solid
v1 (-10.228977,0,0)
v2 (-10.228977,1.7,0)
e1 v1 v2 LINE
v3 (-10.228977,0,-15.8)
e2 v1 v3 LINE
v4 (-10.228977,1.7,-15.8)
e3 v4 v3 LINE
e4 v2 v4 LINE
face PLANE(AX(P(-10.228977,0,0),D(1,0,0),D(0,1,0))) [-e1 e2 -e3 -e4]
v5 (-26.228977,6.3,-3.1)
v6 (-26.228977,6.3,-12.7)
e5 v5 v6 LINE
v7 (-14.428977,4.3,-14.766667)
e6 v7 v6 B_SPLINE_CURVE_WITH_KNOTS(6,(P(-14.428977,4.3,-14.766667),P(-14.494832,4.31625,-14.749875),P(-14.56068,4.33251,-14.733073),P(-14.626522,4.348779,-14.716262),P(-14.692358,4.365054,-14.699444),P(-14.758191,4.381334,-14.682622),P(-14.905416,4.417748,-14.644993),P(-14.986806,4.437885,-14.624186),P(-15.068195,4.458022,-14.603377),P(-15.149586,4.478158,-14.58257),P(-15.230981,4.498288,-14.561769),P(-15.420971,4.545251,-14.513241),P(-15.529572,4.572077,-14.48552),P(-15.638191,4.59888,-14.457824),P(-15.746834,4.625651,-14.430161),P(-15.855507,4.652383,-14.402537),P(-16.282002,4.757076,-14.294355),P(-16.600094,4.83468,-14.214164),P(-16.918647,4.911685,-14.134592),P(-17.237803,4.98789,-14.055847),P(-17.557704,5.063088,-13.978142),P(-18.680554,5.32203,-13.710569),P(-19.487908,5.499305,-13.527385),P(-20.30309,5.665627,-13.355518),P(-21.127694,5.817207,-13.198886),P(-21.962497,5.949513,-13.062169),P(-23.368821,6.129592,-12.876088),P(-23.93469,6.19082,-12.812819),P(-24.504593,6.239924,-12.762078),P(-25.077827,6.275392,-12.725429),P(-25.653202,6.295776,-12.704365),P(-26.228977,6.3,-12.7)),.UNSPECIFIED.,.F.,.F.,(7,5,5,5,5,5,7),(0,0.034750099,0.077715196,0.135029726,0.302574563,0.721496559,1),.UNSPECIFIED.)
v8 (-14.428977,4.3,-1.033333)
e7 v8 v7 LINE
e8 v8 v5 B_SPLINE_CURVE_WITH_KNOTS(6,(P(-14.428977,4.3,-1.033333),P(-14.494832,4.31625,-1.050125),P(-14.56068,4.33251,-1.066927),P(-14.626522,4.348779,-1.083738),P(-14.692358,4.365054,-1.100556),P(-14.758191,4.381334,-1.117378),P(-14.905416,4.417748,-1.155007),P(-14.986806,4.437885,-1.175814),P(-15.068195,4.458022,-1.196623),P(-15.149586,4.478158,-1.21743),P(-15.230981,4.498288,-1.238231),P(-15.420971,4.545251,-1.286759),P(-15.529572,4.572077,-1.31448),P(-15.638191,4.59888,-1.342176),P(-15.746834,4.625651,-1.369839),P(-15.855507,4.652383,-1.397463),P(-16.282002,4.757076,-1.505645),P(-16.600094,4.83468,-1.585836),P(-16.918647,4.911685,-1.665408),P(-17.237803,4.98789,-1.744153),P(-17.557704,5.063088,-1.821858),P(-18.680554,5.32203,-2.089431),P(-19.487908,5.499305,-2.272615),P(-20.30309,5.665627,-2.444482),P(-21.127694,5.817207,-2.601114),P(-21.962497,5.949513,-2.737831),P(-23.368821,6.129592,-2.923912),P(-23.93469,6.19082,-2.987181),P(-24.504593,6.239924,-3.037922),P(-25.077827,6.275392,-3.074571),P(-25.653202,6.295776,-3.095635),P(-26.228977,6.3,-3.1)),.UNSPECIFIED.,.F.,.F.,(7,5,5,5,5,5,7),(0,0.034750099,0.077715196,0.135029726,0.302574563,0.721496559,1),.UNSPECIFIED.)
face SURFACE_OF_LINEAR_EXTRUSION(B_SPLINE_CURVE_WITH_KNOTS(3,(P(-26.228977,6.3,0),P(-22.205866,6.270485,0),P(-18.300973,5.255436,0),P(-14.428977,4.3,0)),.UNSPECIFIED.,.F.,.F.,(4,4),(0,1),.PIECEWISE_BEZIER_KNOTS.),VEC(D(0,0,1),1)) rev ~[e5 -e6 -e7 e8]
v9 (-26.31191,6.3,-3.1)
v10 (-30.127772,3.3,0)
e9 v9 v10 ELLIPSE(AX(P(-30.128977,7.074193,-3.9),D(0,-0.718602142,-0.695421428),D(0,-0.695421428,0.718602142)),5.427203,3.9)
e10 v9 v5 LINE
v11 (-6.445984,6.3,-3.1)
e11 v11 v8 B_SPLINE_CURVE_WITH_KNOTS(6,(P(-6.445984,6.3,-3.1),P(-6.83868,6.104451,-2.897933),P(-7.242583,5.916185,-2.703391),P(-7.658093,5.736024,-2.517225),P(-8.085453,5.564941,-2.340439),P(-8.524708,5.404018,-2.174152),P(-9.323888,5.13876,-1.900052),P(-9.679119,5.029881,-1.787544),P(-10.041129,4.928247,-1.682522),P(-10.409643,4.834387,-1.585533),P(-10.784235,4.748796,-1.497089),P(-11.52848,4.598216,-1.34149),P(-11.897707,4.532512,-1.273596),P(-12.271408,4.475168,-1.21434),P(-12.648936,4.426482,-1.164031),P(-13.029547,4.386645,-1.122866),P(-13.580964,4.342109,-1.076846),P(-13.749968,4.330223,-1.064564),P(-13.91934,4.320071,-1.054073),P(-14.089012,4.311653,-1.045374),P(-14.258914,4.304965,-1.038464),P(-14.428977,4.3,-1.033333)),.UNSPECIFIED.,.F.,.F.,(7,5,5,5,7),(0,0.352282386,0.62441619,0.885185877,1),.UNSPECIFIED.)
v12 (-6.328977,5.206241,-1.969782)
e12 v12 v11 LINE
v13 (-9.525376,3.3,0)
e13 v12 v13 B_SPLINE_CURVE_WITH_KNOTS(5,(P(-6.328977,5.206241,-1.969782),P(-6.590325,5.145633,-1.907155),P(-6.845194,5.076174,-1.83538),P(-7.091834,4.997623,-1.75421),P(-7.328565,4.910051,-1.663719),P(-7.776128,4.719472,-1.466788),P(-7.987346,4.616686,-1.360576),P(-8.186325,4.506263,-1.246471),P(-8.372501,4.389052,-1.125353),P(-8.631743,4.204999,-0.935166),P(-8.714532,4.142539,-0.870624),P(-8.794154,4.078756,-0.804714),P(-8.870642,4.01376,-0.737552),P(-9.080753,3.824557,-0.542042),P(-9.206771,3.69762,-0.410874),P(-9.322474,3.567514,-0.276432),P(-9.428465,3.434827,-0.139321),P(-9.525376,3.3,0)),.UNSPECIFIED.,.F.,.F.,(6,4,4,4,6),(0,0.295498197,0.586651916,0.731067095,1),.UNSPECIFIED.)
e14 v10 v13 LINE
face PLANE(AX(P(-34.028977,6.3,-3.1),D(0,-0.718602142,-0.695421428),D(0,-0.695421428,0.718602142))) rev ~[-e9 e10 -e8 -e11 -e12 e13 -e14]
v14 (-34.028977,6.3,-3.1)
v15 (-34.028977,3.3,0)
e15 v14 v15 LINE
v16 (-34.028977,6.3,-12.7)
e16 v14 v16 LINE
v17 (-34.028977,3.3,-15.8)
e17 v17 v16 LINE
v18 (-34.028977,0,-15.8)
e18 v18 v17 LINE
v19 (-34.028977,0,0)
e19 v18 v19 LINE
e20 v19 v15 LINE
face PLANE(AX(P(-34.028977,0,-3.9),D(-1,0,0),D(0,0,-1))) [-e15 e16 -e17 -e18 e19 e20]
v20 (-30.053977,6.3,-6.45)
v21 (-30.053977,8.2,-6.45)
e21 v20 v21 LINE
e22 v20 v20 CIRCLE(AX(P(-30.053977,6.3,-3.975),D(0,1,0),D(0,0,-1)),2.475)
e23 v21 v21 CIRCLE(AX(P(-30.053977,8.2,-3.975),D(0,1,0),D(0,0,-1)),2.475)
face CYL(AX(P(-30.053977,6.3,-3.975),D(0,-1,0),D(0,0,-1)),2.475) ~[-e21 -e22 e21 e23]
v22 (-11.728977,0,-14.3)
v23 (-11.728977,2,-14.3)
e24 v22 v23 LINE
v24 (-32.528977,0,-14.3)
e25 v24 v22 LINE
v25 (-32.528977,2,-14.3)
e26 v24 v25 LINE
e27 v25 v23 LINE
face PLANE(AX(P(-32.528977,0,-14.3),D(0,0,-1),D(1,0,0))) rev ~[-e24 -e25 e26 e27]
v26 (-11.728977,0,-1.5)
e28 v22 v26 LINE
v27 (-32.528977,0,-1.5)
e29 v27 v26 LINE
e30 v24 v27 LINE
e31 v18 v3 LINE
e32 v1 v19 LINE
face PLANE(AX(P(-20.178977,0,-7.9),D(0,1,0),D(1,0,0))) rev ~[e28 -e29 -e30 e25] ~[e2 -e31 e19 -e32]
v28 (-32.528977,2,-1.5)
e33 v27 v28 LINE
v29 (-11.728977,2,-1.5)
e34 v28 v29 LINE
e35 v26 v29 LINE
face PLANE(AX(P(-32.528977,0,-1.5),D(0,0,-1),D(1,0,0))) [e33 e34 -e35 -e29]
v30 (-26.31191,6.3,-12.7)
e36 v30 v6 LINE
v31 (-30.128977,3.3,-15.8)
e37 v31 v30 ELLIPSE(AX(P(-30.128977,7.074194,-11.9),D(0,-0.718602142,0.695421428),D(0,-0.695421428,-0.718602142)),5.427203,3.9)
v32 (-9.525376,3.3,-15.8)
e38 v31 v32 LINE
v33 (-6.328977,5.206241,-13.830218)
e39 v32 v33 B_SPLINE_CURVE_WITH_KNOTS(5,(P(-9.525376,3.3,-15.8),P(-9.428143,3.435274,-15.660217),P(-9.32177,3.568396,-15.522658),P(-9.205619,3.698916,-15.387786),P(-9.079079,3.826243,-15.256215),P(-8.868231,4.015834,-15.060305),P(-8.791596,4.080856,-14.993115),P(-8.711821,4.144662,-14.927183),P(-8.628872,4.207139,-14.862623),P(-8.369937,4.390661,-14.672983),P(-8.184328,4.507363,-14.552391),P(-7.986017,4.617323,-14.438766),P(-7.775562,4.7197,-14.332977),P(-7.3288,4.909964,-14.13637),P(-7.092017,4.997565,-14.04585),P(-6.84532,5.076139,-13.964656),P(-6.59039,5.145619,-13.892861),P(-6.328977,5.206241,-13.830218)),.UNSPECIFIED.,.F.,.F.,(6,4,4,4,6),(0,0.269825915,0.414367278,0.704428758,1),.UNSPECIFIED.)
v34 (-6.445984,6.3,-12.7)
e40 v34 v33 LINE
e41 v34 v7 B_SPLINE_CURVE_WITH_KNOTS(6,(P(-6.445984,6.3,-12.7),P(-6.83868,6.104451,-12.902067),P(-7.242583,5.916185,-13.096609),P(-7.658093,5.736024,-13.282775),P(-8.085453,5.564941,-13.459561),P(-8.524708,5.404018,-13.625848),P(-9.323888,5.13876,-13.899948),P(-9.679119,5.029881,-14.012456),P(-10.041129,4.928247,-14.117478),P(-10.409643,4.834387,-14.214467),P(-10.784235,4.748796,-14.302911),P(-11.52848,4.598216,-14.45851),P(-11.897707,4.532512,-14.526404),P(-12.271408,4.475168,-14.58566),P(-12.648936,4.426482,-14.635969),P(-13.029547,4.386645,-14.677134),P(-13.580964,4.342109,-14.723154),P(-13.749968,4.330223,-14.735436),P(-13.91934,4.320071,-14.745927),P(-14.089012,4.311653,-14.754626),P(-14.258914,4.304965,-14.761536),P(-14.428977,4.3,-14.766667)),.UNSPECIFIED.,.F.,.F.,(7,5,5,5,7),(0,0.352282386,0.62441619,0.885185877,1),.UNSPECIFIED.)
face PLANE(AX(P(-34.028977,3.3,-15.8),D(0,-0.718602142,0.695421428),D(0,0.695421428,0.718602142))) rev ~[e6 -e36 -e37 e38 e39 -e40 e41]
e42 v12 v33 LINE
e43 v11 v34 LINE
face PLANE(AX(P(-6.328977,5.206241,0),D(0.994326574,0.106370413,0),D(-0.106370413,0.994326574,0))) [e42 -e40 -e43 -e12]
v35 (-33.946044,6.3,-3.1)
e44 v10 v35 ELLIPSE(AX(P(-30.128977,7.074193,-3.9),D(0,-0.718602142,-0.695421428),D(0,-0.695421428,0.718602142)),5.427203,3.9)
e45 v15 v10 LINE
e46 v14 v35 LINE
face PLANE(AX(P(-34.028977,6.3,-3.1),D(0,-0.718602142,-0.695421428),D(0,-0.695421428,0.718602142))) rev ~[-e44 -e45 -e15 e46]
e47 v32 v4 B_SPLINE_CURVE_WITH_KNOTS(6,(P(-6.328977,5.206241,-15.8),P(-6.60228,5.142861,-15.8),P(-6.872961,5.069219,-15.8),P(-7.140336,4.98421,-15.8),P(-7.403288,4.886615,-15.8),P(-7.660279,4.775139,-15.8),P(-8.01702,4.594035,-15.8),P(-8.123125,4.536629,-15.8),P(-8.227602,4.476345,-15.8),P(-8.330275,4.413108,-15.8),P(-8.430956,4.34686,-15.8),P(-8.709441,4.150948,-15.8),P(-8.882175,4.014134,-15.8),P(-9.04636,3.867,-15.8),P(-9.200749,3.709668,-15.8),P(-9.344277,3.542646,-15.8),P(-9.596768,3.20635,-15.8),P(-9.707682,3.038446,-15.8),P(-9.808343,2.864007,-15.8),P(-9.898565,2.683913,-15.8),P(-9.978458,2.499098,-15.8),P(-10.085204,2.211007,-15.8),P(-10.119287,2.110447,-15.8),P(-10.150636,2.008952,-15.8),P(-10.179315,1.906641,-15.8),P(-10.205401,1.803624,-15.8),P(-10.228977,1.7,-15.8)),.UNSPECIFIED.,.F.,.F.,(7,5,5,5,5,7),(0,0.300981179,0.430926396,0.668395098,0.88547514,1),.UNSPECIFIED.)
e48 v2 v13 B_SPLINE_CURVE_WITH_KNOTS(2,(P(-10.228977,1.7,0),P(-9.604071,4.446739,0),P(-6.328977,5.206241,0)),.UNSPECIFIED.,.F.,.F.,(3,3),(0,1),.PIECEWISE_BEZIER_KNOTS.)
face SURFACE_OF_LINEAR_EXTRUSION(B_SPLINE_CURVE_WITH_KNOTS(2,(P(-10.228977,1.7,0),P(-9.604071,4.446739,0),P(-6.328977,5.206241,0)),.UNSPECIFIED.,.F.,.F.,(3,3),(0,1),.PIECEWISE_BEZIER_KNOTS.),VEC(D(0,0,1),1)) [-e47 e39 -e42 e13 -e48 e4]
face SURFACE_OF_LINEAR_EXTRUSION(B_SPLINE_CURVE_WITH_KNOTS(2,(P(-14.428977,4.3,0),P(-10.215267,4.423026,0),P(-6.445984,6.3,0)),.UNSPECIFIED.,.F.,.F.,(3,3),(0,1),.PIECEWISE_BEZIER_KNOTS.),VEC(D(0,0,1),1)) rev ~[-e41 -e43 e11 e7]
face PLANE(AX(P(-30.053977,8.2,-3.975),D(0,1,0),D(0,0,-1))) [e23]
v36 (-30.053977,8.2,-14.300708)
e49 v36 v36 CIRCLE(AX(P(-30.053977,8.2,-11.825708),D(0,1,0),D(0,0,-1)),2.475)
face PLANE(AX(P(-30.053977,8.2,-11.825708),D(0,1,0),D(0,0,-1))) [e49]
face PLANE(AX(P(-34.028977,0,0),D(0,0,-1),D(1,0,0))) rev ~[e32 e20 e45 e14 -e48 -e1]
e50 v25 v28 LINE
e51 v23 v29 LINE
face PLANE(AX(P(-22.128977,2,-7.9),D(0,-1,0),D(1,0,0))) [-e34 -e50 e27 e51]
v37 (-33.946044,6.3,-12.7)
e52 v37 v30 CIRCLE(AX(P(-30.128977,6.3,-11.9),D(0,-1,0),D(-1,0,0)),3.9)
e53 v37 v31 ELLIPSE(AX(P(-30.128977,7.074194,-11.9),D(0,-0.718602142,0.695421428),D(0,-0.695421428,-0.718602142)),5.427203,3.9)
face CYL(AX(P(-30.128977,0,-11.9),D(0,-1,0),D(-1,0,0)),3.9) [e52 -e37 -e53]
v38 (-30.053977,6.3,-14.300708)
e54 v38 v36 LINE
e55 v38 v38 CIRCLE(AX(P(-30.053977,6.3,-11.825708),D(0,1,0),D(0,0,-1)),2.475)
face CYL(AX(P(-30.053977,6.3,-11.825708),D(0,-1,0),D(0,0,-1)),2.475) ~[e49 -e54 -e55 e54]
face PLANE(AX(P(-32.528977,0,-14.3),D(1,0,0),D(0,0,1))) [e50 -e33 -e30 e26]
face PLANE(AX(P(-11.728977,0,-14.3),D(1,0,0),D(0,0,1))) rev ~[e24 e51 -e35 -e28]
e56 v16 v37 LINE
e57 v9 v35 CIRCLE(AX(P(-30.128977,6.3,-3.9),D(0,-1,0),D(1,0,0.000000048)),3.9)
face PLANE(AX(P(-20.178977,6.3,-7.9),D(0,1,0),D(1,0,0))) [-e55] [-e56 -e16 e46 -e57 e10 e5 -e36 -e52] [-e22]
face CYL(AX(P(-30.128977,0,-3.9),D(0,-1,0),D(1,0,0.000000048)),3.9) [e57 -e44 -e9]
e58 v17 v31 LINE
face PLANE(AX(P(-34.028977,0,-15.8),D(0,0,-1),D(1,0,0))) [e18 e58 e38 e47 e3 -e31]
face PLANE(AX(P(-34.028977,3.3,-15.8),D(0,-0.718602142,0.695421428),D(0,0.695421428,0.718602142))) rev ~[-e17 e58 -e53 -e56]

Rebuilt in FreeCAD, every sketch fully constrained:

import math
import FreeCAD as App
import Part
import Sketcher
from FreeCAD import Vector


def add_polygon(sketch, points):
    """Adds a closed chain of lines whose ends are joined by coincident constraints."""
    first, n = sketch.GeometryCount, len(points)
    for a, b in zip(points, points[1:] + points[:1]):
        sketch.addGeometry(Part.LineSegment(App.Vector(*a, 0), App.Vector(*b, 0)), False)
    for i in range(n):
        sketch.addConstraint(Sketcher.Constraint("Coincident", first + i, 2, first + (i + 1) % n, 1))

doc = App.newDocument("Part")
body = doc.addObject("PartDesign::Body", "Body")

sketch1 = body.newObject("Sketcher::SketchObject", "Sketch")
sketch1.AttachmentSupport = (doc.getObject("XZ_Plane"), [""])
sketch1.MapMode = "FlatFace"
add_polygon(sketch1, [(-34, -16), (-34, 0), (-6, 0), (-6, -16)])
sketch1.addConstraint([
    Sketcher.Constraint("Vertical", 0),
    Sketcher.Constraint("Horizontal", 1),
    Sketcher.Constraint("Vertical", 2),
    Sketcher.Constraint("Horizontal", 3),
    Sketcher.Constraint("PointOnObject", 0, 2, -1),
    Sketcher.Constraint("DistanceX", 1, 1, 1, 2, 27.7),
    Sketcher.Constraint("DistanceY", 0, 1, 0, 2, 15.8),
    Sketcher.Constraint("DistanceX", 0, 2, -1, 1, 34.028977),
])
pad1 = body.newObject("PartDesign::Pad", "Pad")
pad1.Profile = sketch1
pad1.Length = 6.3
pad1.Reversed = True

sketch2 = body.newObject("Sketcher::SketchObject", "Sketch001")
sketch2.AttachmentSupport = (doc.getObject("XY_Plane"), [""])
sketch2.MapMode = "FlatFace"
add_polygon(sketch2, [(-38.28, 10.551), (-38.28, -4.251), (-2.078, -4.251), (-2.078, 10.551)])
sketch2.addGeometry(Part.LineSegment(Vector(-10.228977, 0, 0), Vector(-34.028977, 0, 0)), False)
sketch2.addGeometry(Part.LineSegment(Vector(-34.028977, 0, 0), Vector(-34.028977, 6.3, 0)), False)
sketch2.addGeometry(Part.LineSegment(Vector(-34.028977, 6.3, 0), Vector(-26.228977, 6.3, 0)), False)
sketch2.addGeometry(Part.BSplineCurve([Vector(-26.228977, 6.3, 0), Vector(-22.205866, 6.270485, 0), Vector(-18.300973, 5.255436, 0), Vector(-14.428977, 4.3, 0)], [4, 4], [0, 1], False, 3, [1, 1, 1, 1], False), False)
sketch2.addGeometry(Part.BSplineCurve([Vector(-14.428977, 4.3, 0), Vector(-10.215267, 4.423026, 0), Vector(-6.445984, 6.3, 0)], [3, 3], [0, 1], False, 2, [1, 1, 1], False), False)
sketch2.addGeometry(Part.LineSegment(Vector(-6.445984, 6.3, 0), Vector(-6.328977, 5.206241, 0)), False)
sketch2.addGeometry(Part.BSplineCurve([Vector(-10.228977, 1.7, 0), Vector(-9.604071, 4.446739, 0), Vector(-6.328977, 5.206241, 0)], [3, 3], [0, 1], False, 2, [1, 1, 1], False), False)
sketch2.addGeometry(Part.LineSegment(Vector(-10.228977, 1.7, 0), Vector(-10.228977, 0, 0)), False)
sketch2.addConstraint([
    Sketcher.Constraint("Block", 7),
    Sketcher.Constraint("Block", 8),
    Sketcher.Constraint("Block", 10),
    Sketcher.Constraint("Coincident", 4, 2, 5, 1),
    Sketcher.Constraint("Coincident", 5, 2, 6, 1),
    Sketcher.Constraint("Coincident", 6, 2, 7, 1),
    Sketcher.Constraint("Coincident", 8, 2, 9, 1),
    Sketcher.Constraint("Coincident", 9, 2, 10, 2),
    Sketcher.Constraint("Coincident", 10, 1, 11, 1),
    Sketcher.Constraint("Coincident", 11, 2, 4, 1),
    Sketcher.Constraint("Vertical", 0),
    Sketcher.Constraint("Horizontal", 1),
    Sketcher.Constraint("Vertical", 2),
    Sketcher.Constraint("Horizontal", 3),
    Sketcher.Constraint("Horizontal", 4),
    Sketcher.Constraint("Vertical", 5),
    Sketcher.Constraint("Horizontal", 6),
    Sketcher.Constraint("Vertical", 11),
    Sketcher.Constraint("PointOnObject", 4, 2, -1),
    Sketcher.Constraint("DistanceX", 4, 2, 4, 1, 23.8),
    Sketcher.Constraint("DistanceX", 1, 1, 1, 2, 36.202),
    Sketcher.Constraint("DistanceY", 0, 2, 0, 1, 14.802),
    Sketcher.Constraint("DistanceX", 0, 2, -1, 1, 38.28),
    Sketcher.Constraint("DistanceY", 0, 2, -1, 1, 4.251),
])
pocket1 = body.newObject("PartDesign::Pocket", "Pocket")
pocket1.Profile = sketch2
pocket1.Length = 15.9

sketch3 = body.newObject("Sketcher::SketchObject", "Sketch002")
sketch3.AttachmentSupport = (doc.getObject("YZ_Plane"), [""])
sketch3.MapMode = "FlatFace"
sketch3.AttachmentOffset = App.Placement(Vector(0, 0, -34.028977), App.Rotation())
add_polygon(sketch3, [(10.6, -20.1), (-4.3, -20.1), (-4.3, 4.3), (10.6, 4.3)])
add_polygon(sketch3, [(0, 0), (0, -15.8), (3.3, -15.8), (6.3, -12.7), (6.3, -3.1), (3.3, 0)])
sketch3.addConstraint([
    Sketcher.Constraint("Horizontal", 0),
    Sketcher.Constraint("Vertical", 1),
    Sketcher.Constraint("Horizontal", 2),
    Sketcher.Constraint("Vertical", 3),
    Sketcher.Constraint("Vertical", 4),
    Sketcher.Constraint("Horizontal", 5),
    Sketcher.Constraint("Vertical", 7),
    Sketcher.Constraint("Horizontal", 9),
    Sketcher.Constraint("Coincident", 9, 2, -1, 1),
    Sketcher.Constraint("Vertical", 5, 2, 8, 2),
    Sketcher.Constraint("Equal", 6, 8),
    Sketcher.Constraint("DistanceX", 5, 1, 5, 2, 3.3),
    Sketcher.Constraint("DistanceY", 4, 2, 4, 1, 15.8),
    Sketcher.Constraint("DistanceY", 7, 1, 7, 2, 9.6),
    Sketcher.Constraint("DistanceX", 5, 2, 6, 2, 3.0),
    Sketcher.Constraint("DistanceX", 0, 2, 0, 1, 14.802),
    Sketcher.Constraint("DistanceY", 1, 1, 1, 2, 24.302),
    Sketcher.Constraint("DistanceX", 0, 2, -1, 1, 4.251),
    Sketcher.Constraint("DistanceY", 0, 2, -1, 1, 20.051),
])
pocket2 = body.newObject("PartDesign::Pocket", "Pocket001")
pocket2.Profile = sketch3
pocket2.Length = 35.9
pocket2.Reversed = True

sketch4 = body.newObject("Sketcher::SketchObject", "Sketch003")
sketch4.AttachmentSupport = (doc.getObject("XZ_Plane"), [""])
sketch4.MapMode = "FlatFace"
sketch4.addGeometry([
    Part.LineSegment(Vector(-34, -3.9, 0), Vector(-34, -11.9, 0)),
    Part.ArcOfCircle(Part.Circle(Vector(-30.1, -11.9, 0), Vector(0, 0, 1), 3.9), math.radians(180), math.radians(360)),
    Part.LineSegment(Vector(-26.2, -11.9, 0), Vector(-26.2, -3.9, 0)),
    Part.ArcOfCircle(Part.Circle(Vector(-30.1, -3.9, 0), Vector(0, 0, 1), 3.9), math.radians(0), math.radians(180)),
], False)
sketch4.addConstraint([
    Sketcher.Constraint("Tangent", 0, 2, 1, 1),
    Sketcher.Constraint("Tangent", 1, 2, 2, 1),
    Sketcher.Constraint("Tangent", 2, 2, 3, 1),
    Sketcher.Constraint("Tangent", 3, 2, 0, 1),
    Sketcher.Constraint("Vertical", 0),
    Sketcher.Constraint("Vertical", 2),
    Sketcher.Constraint("Radius", 1, 3.9),
    Sketcher.Constraint("DistanceY", 0, 2, 0, 1, 8.0),
    Sketcher.Constraint("DistanceY", 1, 3, -1, 1, 11.9),
    Sketcher.Constraint("DistanceX", 1, 3, -1, 1, 30.128977),
])
pad2 = body.newObject("PartDesign::Pad", "Pad001")
pad2.Profile = sketch4
pad2.Length = 6.3
pad2.Reversed = True

sketch5 = body.newObject("Sketcher::SketchObject", "Sketch004")
sketch5.AttachmentSupport = (doc.getObject("XZ_Plane"), [""])
sketch5.MapMode = "FlatFace"
sketch5.AttachmentOffset = App.Placement(Vector(0, 0, -6.3), App.Rotation())
sketch5.addGeometry([
    Part.Circle(Vector(-30.1, -11.8, 0), Vector(0, 0, 1), 2.5),
    Part.Circle(Vector(-30.1, -4, 0), Vector(0, 0, 1), 2.5),
], False)
sketch5.addConstraint([
    Sketcher.Constraint("Equal", 0, 1),
    Sketcher.Constraint("Vertical", 0, 3, 1, 3),
    Sketcher.Constraint("Diameter", 0, 4.95),
    Sketcher.Constraint("DistanceY", 1, 3, -1, 1, 3.975),
    Sketcher.Constraint("DistanceX", 0, 3, -1, 1, 30.053977),
    Sketcher.Constraint("DistanceY", 0, 3, -1, 1, 11.825708),
])
pad3 = body.newObject("PartDesign::Pad", "Pad002")
pad3.Profile = sketch5
pad3.Length = 1.9
pad3.Reversed = True

sketch6 = body.newObject("Sketcher::SketchObject", "Sketch005")
sketch6.AttachmentSupport = (doc.getObject("XZ_Plane"), [""])
sketch6.MapMode = "FlatFace"
add_polygon(sketch6, [(-33, -2), (-33, -14), (-12, -14), (-12, -2)])
sketch6.addConstraint([
    Sketcher.Constraint("Vertical", 0),
    Sketcher.Constraint("Horizontal", 1),
    Sketcher.Constraint("Vertical", 2),
    Sketcher.Constraint("Horizontal", 3),
    Sketcher.Constraint("DistanceX", 1, 1, 1, 2, 20.8),
    Sketcher.Constraint("DistanceY", 0, 2, 0, 1, 12.8),
    Sketcher.Constraint("DistanceY", 0, 2, -1, 1, 14.3),
    Sketcher.Constraint("DistanceX", 0, 2, -1, 1, 32.528977),
])
pocket3 = body.newObject("PartDesign::Pocket", "Pocket002")
pocket3.Profile = sketch6
pocket3.Length = 2

doc.recompute()
